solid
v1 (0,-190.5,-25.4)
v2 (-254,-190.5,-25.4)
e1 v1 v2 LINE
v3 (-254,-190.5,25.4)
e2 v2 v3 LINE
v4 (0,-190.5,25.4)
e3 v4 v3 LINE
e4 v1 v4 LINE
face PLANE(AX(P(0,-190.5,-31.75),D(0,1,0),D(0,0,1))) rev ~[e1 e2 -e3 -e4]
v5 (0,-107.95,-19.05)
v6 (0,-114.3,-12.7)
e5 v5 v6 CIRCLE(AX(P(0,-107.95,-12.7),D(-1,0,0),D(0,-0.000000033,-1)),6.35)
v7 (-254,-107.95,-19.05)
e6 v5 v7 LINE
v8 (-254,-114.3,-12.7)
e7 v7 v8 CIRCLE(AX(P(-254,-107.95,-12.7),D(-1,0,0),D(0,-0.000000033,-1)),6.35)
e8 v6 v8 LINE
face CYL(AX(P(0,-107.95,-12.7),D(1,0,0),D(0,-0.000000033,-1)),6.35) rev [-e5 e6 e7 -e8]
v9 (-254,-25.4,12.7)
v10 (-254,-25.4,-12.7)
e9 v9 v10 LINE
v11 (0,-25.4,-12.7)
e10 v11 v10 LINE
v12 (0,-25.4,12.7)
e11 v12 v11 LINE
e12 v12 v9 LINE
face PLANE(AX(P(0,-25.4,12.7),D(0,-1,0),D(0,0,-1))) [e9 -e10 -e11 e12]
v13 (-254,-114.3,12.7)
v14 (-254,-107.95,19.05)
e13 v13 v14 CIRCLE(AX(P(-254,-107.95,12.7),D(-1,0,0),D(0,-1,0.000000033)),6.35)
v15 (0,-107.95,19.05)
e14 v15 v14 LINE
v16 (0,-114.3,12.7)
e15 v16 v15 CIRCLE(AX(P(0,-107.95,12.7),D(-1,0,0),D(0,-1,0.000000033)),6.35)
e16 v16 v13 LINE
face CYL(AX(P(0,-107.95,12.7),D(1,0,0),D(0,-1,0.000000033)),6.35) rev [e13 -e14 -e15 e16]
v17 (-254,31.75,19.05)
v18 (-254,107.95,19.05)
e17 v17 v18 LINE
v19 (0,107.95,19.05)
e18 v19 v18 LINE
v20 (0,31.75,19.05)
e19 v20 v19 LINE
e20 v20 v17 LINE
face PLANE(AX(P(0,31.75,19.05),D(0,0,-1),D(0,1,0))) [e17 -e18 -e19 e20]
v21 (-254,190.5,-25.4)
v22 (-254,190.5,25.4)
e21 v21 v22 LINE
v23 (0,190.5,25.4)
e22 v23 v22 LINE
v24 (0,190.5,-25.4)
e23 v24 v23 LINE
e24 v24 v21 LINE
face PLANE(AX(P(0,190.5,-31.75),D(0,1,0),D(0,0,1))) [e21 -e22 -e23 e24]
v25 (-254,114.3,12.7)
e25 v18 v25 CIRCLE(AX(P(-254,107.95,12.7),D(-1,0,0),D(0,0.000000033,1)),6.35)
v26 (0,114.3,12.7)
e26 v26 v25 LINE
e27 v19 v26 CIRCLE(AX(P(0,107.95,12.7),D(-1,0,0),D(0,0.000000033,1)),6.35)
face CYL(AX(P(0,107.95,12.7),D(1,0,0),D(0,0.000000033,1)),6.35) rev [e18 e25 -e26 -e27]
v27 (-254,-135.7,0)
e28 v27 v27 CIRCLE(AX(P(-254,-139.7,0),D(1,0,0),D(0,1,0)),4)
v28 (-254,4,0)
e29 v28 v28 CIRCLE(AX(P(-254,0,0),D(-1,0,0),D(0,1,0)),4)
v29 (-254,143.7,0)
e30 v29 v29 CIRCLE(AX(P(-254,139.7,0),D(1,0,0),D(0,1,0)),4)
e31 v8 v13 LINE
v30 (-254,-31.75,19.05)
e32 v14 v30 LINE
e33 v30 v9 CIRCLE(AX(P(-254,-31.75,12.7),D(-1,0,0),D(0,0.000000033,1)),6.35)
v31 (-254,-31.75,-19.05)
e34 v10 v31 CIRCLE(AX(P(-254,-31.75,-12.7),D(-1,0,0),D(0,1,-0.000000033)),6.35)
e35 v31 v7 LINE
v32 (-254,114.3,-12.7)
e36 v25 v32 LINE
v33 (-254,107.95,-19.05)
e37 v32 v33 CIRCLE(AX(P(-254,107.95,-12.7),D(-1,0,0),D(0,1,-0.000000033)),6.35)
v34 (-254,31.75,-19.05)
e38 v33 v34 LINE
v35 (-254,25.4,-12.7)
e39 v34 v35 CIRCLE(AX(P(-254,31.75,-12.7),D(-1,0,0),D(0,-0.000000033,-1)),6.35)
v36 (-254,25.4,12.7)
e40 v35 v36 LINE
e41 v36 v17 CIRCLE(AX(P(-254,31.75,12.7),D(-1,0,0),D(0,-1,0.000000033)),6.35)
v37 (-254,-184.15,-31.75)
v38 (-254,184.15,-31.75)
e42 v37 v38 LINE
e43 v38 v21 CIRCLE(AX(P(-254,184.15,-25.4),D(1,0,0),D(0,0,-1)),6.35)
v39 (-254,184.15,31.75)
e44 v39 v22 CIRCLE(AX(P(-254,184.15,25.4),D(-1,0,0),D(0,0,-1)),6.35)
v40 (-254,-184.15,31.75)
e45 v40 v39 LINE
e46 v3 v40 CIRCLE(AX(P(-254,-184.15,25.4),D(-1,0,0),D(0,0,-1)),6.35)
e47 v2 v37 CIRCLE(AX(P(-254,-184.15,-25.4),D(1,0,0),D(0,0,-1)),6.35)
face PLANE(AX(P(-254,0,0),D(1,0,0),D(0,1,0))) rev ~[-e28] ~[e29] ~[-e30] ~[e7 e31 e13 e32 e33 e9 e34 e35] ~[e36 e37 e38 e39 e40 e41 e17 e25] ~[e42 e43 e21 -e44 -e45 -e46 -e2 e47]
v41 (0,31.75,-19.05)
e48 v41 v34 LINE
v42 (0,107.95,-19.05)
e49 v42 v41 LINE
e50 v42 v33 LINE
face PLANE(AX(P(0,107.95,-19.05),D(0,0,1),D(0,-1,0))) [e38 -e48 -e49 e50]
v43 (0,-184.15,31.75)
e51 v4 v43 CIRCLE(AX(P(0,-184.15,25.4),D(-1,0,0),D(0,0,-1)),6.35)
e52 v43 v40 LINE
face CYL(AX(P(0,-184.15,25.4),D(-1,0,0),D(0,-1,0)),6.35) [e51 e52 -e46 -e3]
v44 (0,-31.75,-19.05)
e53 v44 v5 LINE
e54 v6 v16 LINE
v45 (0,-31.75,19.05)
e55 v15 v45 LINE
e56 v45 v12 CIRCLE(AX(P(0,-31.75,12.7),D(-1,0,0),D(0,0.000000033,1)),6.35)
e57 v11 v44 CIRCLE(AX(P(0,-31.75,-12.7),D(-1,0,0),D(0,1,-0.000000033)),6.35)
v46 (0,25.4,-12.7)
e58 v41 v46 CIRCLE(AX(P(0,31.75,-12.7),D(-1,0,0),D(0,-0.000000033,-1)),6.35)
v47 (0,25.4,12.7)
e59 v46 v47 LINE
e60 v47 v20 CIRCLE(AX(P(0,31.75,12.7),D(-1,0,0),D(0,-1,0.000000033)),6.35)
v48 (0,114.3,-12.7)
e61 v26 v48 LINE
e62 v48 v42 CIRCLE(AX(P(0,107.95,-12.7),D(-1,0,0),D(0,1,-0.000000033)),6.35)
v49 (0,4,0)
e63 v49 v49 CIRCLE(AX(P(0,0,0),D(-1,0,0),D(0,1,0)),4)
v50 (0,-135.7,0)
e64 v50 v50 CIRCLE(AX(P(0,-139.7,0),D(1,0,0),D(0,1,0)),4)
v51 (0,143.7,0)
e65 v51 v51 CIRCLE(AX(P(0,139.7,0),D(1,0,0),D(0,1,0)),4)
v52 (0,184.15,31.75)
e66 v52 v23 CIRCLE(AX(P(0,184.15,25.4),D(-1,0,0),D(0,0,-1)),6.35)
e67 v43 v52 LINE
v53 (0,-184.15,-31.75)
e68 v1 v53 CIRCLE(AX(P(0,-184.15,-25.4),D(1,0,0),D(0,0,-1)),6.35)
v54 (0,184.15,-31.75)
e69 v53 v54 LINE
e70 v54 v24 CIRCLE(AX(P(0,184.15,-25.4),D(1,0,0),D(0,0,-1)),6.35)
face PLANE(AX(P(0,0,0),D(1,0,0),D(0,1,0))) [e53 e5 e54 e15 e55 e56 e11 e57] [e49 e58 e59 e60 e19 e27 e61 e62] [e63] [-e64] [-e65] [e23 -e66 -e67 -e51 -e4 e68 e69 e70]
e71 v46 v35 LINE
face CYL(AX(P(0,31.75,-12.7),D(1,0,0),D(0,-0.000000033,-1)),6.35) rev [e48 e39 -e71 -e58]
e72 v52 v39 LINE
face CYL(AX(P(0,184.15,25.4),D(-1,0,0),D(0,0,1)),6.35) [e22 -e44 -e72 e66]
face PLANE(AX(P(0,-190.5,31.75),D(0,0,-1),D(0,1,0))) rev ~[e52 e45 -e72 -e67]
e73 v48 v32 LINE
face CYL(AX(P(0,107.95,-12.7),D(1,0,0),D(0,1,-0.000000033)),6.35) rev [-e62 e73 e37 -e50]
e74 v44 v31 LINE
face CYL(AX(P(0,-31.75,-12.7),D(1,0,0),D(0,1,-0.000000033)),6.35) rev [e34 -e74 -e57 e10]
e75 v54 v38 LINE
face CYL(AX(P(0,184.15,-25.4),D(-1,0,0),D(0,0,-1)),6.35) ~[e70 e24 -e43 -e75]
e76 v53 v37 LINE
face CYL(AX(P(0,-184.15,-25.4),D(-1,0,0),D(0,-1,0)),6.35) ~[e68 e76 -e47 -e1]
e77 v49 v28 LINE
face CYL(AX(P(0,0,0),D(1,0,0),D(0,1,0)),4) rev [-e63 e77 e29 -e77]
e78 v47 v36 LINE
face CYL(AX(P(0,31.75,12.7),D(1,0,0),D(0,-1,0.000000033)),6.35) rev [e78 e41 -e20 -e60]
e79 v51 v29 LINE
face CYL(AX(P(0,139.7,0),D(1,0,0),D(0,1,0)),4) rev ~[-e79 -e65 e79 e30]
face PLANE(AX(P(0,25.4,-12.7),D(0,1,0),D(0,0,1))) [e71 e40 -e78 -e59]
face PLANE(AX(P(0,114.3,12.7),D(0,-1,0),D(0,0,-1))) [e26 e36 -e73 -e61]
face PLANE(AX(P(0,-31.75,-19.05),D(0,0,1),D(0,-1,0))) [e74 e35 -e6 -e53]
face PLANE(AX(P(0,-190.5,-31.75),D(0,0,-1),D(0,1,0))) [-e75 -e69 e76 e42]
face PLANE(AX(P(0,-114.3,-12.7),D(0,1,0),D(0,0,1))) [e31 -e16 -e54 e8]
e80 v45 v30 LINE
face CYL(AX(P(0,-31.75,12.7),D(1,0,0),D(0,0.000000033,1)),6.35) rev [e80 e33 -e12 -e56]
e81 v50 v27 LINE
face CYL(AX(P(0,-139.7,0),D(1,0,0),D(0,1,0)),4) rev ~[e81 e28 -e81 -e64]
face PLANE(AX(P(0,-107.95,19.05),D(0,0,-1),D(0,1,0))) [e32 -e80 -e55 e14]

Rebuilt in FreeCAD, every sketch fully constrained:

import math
import FreeCAD as App
import Part
import Sketcher
from FreeCAD import Vector
Q = App.Units.Quantity


def edges_at(feature, points):
    """Names of the edges that pass closest to the given points."""
    edges = feature.Shape.Edges
    near = lambda p: min(range(len(edges)), key=lambda i: edges[i].distToShape(Part.Vertex(*p))[0])
    return sorted({f"Edge{near(p) + 1}" for p in points})

doc = App.newDocument("Part")
params = doc.addObject("Spreadsheet::Sheet", "Params")
for row, (alias, value) in enumerate([
    ("sketch1_width", "15 in"),
    ("sketch1_width2", "3 in"),
    ("sketch1_height", "1 in"),
    ("sketch1_radius", "0.25 in"),
    ("sketch1_height2", "2.5 in"),
    ("pad1_length", "10 in"),
    ("fillet_radius", "0.25 in"),
], start=1):
    params.set(f"A{row}", alias)
    params.set(f"B{row}", "=" + value)
    params.setAlias(f"B{row}", alias)

body = doc.addObject("PartDesign::Body", "Body")

sketch1 = body.newObject("Sketcher::SketchObject", "Sketch")
sketch1.AttachmentSupport = (doc.getObject("YZ_Plane"), [""])
sketch1.MapMode = "FlatFace"
sketch1.addGeometry([
    Part.LineSegment(Vector(-190.5, 31.8, 0), Vector(-190.5, -31.8, 0)),
    Part.LineSegment(Vector(-190.5, -31.8, 0), Vector(190.5, -31.8, 0)),
    Part.LineSegment(Vector(190.5, -31.8, 0), Vector(190.5, 31.8, 0)),
    Part.LineSegment(Vector(190.5, 31.8, 0), Vector(-190.5, 31.8, 0)),
    Part.Circle(Vector(-139.7, 0, 0), Vector(0, 0, 1), 4),
    Part.ArcOfCircle(Part.Circle(Vector(-31.8, 12.7, 0), Vector(0, 0, 1), 6.4), math.radians(0), math.radians(90)),
    Part.LineSegment(Vector(-25.4, 12.7, 0), Vector(-25.4, -12.7, 0)),
    Part.ArcOfCircle(Part.Circle(Vector(-31.8, -12.7, 0), Vector(0, 0, 1), 6.4), math.radians(-90), math.radians(0)),
    Part.LineSegment(Vector(-31.8, -19.1, 0), Vector(-108, -19.1, 0)),
    Part.ArcOfCircle(Part.Circle(Vector(-107.9, -12.7, 0), Vector(0, 0, 1), 6.4), math.radians(-180), math.radians(-90)),
    Part.LineSegment(Vector(-114.3, -12.7, 0), Vector(-114.3, 12.7, 0)),
    Part.ArcOfCircle(Part.Circle(Vector(-107.9, 12.7, 0), Vector(0, 0, 1), 6.4), math.radians(90), math.radians(180)),
    Part.LineSegment(Vector(-108, 19.1, 0), Vector(-31.8, 19.1, 0)),
    Part.Circle(Vector(0, 0, 0), Vector(0, 0, 1), 4),
    Part.ArcOfCircle(Part.Circle(Vector(31.8, -12.7, 0), Vector(0, 0, 1), 6.4), math.radians(-180), math.radians(-90)),
    Part.LineSegment(Vector(25.4, -12.7, 0), Vector(25.4, 12.7, 0)),
    Part.ArcOfCircle(Part.Circle(Vector(31.8, 12.7, 0), Vector(0, 0, 1), 6.4), math.radians(90), math.radians(180)),
    Part.LineSegment(Vector(31.8, 19.1, 0), Vector(108, 19.1, 0)),
    Part.ArcOfCircle(Part.Circle(Vector(107.9, 12.7, 0), Vector(0, 0, 1), 6.4), math.radians(0), math.radians(90)),
    Part.LineSegment(Vector(114.3, 12.7, 0), Vector(114.3, -12.7, 0)),
    Part.ArcOfCircle(Part.Circle(Vector(107.9, -12.7, 0), Vector(0, 0, 1), 6.4), math.radians(-90), math.radians(0)),
    Part.LineSegment(Vector(108, -19.1, 0), Vector(31.8, -19.1, 0)),
    Part.Circle(Vector(139.7, 0, 0), Vector(0, 0, 1), 4),
], False)
sketch1.addConstraint([
    Sketcher.Constraint("Coincident", 0, 2, 1, 1),
    Sketcher.Constraint("Coincident", 1, 2, 2, 1),
    Sketcher.Constraint("Coincident", 2, 2, 3, 1),
    Sketcher.Constraint("Coincident", 3, 2, 0, 1),
    Sketcher.Constraint("Tangent", 5, 1, 6, 1),
    Sketcher.Constraint("Tangent", 6, 2, 7, 2),
    Sketcher.Constraint("Tangent", 7, 1, 8, 1),
    Sketcher.Constraint("Tangent", 8, 2, 9, 2),
    Sketcher.Constraint("Tangent", 9, 1, 10, 1),
    Sketcher.Constraint("Tangent", 10, 2, 11, 2),
    Sketcher.Constraint("Tangent", 11, 1, 12, 1),
    Sketcher.Constraint("Tangent", 12, 2, 5, 2),
    Sketcher.Constraint("Tangent", 14, 1, 15, 1),
    Sketcher.Constraint("Tangent", 15, 2, 16, 2),
    Sketcher.Constraint("Tangent", 16, 1, 17, 1),
    Sketcher.Constraint("Tangent", 17, 2, 18, 2),
    Sketcher.Constraint("Tangent", 18, 1, 19, 1),
    Sketcher.Constraint("Tangent", 19, 2, 20, 2),
    Sketcher.Constraint("Tangent", 20, 1, 21, 1),
    Sketcher.Constraint("Tangent", 21, 2, 14, 2),
    Sketcher.Constraint("Vertical", 0),
    Sketcher.Constraint("Horizontal", 1),
    Sketcher.Constraint("Vertical", 2),
    Sketcher.Constraint("Horizontal", 3),
    Sketcher.Constraint("Vertical", 6),
    Sketcher.Constraint("Horizontal", 8),
    Sketcher.Constraint("Vertical", 10),
    Sketcher.Constraint("Horizontal", 12),
    Sketcher.Constraint("Vertical", 15),
    Sketcher.Constraint("Horizontal", 17),
    Sketcher.Constraint("Vertical", 19),
    Sketcher.Constraint("Horizontal", 21),
    Sketcher.Constraint("Coincident", 13, 3, -1, 1),
    Sketcher.Constraint("Equal", 5, 7),
    Sketcher.Constraint("Equal", 7, 9),
    Sketcher.Constraint("Equal", 9, 11),
    Sketcher.Constraint("Equal", 4, 13),
    Sketcher.Constraint("Equal", 11, 14),
    Sketcher.Constraint("Equal", 14, 16),
    Sketcher.Constraint("Equal", 16, 18),
    Sketcher.Constraint("Equal", 18, 20),
    Sketcher.Constraint("Equal", 13, 22),
    Sketcher.Constraint("Symmetric", 5, 3, 14, 3, -1, 1),
    Sketcher.Constraint("Symmetric", 9, 3, 18, 3, -1, 1),
    Sketcher.Constraint("Symmetric", 4, 3, 22, 3, -1, 1),
    Sketcher.Constraint("Symmetric", 0, 2, 2, 2, -1, 1),
    Sketcher.Constraint("PointOnObject", 4, 3, -1),
    Sketcher.Constraint("Horizontal", 9, 3, 14, 3),
    Sketcher.Constraint("DistanceX", 1, 1, 1, 2, Q("15 in")),
    Sketcher.Constraint("DistanceX", 8, 2, 8, 1, Q("3 in")),
    Sketcher.Constraint("DistanceY", 6, 2, 6, 1, Q("1 in")),
    Sketcher.Constraint("Radius", 5, Q("0.25 in")),
    Sketcher.Constraint("DistanceY", 0, 2, 0, 1, Q("2.5 in")),
    Sketcher.Constraint("DistanceX", 5, 1, -1, 1, Q("1 in")),
    Sketcher.Constraint("DistanceX", 0, 2, 4, 3, Q("2 in")),
    Sketcher.Constraint("Diameter", 4, Q("8 mm")),
])
sketch1.setExpression("Constraints[48]", "Params.sketch1_width")
sketch1.setExpression("Constraints[49]", "Params.sketch1_width2")
sketch1.setExpression("Constraints[50]", "Params.sketch1_height")
sketch1.setExpression("Constraints[51]", "Params.sketch1_radius")
sketch1.setExpression("Constraints[52]", "Params.sketch1_height2")
pad1 = body.newObject("PartDesign::Pad", "Pad")
pad1.Profile = sketch1
pad1.setExpression("Length", "Params.pad1_length")
pad1.Reversed = True
doc.recompute()

fillet = body.newObject("PartDesign::Fillet", "Fillet")
fillet.Base = (pad1, edges_at(pad1, [
    (-127, -190.5, -31.75),
    (-127, -190.5, 31.75),
    (-127, 190.5, 31.75),
    (-127, 190.5, -31.75),
]))
fillet.setExpression("Radius", "Params.fillet_radius")

doc.recompute()
